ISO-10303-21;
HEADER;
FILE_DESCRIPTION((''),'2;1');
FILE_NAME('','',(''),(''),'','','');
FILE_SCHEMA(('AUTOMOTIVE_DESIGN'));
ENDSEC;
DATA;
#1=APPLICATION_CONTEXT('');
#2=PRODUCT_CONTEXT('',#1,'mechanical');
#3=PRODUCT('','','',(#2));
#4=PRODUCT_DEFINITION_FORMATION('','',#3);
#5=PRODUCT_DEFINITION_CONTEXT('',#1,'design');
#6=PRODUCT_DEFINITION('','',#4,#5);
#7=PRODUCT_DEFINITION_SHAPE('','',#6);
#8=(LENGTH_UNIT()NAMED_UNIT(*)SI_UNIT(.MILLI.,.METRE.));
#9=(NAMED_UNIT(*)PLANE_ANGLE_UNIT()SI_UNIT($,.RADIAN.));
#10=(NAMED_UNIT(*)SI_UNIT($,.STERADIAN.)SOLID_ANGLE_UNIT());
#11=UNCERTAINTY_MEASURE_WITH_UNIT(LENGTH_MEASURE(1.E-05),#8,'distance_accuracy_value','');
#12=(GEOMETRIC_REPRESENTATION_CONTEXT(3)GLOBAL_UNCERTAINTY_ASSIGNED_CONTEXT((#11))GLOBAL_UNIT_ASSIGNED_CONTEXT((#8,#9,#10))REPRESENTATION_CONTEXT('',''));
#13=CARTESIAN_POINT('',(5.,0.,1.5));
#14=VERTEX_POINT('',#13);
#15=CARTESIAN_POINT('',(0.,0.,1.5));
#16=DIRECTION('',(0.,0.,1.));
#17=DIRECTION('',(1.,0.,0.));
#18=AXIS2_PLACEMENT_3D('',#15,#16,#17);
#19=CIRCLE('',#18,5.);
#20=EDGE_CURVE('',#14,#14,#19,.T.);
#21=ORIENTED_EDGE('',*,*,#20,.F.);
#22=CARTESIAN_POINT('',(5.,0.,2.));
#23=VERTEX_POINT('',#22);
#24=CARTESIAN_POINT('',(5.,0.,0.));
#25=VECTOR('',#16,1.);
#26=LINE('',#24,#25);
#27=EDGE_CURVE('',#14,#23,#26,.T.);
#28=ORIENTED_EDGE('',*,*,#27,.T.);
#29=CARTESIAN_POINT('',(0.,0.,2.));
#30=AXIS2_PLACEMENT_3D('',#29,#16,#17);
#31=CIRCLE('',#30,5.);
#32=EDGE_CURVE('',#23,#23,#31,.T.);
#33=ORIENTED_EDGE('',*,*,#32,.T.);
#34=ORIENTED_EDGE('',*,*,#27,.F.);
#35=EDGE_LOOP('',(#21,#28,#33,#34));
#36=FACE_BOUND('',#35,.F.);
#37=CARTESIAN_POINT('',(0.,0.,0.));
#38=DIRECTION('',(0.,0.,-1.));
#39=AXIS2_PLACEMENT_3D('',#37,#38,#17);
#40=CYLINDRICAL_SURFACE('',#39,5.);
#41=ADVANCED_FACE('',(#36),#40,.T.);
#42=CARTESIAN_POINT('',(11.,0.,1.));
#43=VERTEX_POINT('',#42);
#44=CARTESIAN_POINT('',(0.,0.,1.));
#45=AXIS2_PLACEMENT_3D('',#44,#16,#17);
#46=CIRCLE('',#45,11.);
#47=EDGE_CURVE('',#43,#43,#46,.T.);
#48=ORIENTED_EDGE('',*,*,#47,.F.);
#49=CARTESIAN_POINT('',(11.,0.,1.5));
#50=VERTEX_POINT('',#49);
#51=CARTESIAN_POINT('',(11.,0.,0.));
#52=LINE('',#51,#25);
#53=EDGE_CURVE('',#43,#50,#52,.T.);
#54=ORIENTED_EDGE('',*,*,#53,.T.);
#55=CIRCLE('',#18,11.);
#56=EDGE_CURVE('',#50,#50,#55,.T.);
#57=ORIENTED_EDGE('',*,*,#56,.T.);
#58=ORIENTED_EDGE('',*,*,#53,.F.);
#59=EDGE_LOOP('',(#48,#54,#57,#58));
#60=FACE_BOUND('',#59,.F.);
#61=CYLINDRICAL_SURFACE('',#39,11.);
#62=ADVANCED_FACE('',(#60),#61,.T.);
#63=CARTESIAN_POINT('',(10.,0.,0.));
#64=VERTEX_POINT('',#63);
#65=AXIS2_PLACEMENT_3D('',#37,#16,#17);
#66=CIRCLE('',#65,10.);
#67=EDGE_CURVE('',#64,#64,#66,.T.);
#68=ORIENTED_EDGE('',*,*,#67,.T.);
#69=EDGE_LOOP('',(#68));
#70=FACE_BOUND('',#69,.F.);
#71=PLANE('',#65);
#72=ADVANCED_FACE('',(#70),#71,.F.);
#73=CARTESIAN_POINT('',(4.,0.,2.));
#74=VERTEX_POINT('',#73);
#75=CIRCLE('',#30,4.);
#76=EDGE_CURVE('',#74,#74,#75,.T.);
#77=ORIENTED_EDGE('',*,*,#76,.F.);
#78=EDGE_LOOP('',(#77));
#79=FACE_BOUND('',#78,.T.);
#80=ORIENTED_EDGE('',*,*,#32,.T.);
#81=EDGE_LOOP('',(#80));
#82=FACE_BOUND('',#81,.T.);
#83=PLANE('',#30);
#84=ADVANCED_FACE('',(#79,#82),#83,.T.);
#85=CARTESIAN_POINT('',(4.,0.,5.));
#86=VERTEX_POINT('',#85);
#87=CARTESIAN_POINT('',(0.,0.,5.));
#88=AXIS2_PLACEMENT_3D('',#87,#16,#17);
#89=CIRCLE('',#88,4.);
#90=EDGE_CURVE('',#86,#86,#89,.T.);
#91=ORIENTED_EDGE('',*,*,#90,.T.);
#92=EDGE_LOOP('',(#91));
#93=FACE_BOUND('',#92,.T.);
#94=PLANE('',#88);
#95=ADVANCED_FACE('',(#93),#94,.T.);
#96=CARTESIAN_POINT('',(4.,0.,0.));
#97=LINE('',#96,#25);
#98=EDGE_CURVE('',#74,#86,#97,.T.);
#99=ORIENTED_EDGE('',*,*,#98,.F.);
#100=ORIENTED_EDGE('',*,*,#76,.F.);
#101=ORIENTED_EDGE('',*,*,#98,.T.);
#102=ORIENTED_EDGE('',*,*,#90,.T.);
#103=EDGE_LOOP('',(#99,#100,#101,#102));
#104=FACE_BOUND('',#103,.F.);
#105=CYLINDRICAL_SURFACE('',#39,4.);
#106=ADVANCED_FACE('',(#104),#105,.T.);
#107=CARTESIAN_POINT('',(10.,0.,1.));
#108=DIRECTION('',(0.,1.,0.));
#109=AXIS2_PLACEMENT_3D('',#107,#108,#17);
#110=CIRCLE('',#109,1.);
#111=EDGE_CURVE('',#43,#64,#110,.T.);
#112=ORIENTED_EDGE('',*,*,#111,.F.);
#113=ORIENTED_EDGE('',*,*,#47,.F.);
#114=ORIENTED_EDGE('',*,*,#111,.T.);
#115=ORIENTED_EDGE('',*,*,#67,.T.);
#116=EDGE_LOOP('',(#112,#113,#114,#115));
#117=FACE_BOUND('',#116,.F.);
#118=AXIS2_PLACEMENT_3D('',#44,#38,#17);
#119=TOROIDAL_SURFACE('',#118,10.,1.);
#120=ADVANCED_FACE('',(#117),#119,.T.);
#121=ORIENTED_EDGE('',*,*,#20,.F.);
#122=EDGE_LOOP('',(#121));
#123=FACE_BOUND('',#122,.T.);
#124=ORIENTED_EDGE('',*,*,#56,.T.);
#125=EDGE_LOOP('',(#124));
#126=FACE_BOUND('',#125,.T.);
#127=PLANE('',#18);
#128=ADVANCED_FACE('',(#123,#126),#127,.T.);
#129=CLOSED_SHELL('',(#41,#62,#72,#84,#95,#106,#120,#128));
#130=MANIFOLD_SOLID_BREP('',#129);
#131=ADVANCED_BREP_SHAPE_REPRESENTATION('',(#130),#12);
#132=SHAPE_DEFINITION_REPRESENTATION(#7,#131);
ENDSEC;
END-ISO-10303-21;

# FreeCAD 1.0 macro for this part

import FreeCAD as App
import Part
import Sketcher
Q = App.Units.Quantity


def edges_at(feature, points):
    """Names of the edges that pass closest to the given points."""
    edges = feature.Shape.Edges
    near = lambda p: min(range(len(edges)), key=lambda i: edges[i].distToShape(Part.Vertex(*p))[0])
    return sorted({f"Edge{near(p) + 1}" for p in points})

doc = App.newDocument("Part")
params = doc.addObject("Spreadsheet::Sheet", "Params")
for row, (alias, value) in enumerate([
    ("sketch1_diameter", "22 mm"),
    ("sketch1_diameter2", "10 mm"),
    ("pad1_length", "1.5 mm"),
    ("sketch2_diameter", "10 mm"),
    ("sketch2_diameter2", "8 mm"),
    ("pad2_length", "2 mm"),
    ("sketch3_diameter", "8 mm"),
    ("pad3_length", "5 mm"),
    ("fillet_radius", "1 mm"),
], start=1):
    params.set(f"A{row}", alias)
    params.set(f"B{row}", "=" + value)
    params.setAlias(f"B{row}", alias)

body = doc.addObject("PartDesign::Body", "Body")

# Sketch on XY plane
sketch1 = body.newObject("Sketcher::SketchObject", "Sketch")
sketch1.AttachmentSupport = (doc.getObject("XY_Plane"), [""])
sketch1.MapMode = "FlatFace"
sketch1.addGeometry(Part.Circle(App.Vector(0, 0, 0), App.Vector(0, 0, 1), 11), False)
sketch1.addGeometry(Part.Circle(App.Vector(0, 0, 0), App.Vector(0, 0, 1), 5), False)
sketch1.addConstraint(Sketcher.Constraint("Coincident", 0, 3, -1, 1))
sketch1.addConstraint(Sketcher.Constraint("Coincident", 1, 3, -1, 1))
sketch1.addConstraint(Sketcher.Constraint("Diameter", 0, Q("22 mm")))
sketch1.addConstraint(Sketcher.Constraint("Diameter", 1, Q("10 mm")))
sketch1.setExpression("Constraints[2]", "Params.sketch1_diameter")
sketch1.setExpression("Constraints[3]", "Params.sketch1_diameter2")
pad1 = body.newObject("PartDesign::Pad", "Pad")
pad1.Profile = sketch1
pad1.setExpression("Length", "Params.pad1_length")

# Sketch on XY plane
sketch2 = body.newObject("Sketcher::SketchObject", "Sketch001")
sketch2.AttachmentSupport = (doc.getObject("XY_Plane"), [""])
sketch2.MapMode = "FlatFace"
sketch2.addGeometry(Part.Circle(App.Vector(0, 0, 0), App.Vector(0, 0, 1), 5), False)
sketch2.addGeometry(Part.Circle(App.Vector(0, 0, 0), App.Vector(0, 0, 1), 4), False)
sketch2.addConstraint(Sketcher.Constraint("Coincident", 0, 3, -1, 1))
sketch2.addConstraint(Sketcher.Constraint("Coincident", 1, 3, -1, 1))
sketch2.addConstraint(Sketcher.Constraint("Diameter", 0, Q("10 mm")))
sketch2.addConstraint(Sketcher.Constraint("Diameter", 1, Q("8 mm")))
sketch2.setExpression("Constraints[2]", "Params.sketch2_diameter")
sketch2.setExpression("Constraints[3]", "Params.sketch2_diameter2")
pad2 = body.newObject("PartDesign::Pad", "Pad001")
pad2.Profile = sketch2
pad2.setExpression("Length", "Params.pad2_length")

# Sketch on XY plane
sketch3 = body.newObject("Sketcher::SketchObject", "Sketch002")
sketch3.AttachmentSupport = (doc.getObject("XY_Plane"), [""])
sketch3.MapMode = "FlatFace"
sketch3.addGeometry(Part.Circle(App.Vector(0, 0, 0), App.Vector(0, 0, 1), 4), False)
sketch3.addConstraint(Sketcher.Constraint("Coincident", 0, 3, -1, 1))
sketch3.addConstraint(Sketcher.Constraint("Diameter", 0, Q("8 mm")))
sketch3.setExpression("Constraints[1]", "Params.sketch3_diameter")
pad3 = body.newObject("PartDesign::Pad", "Pad002")
pad3.Profile = sketch3
pad3.setExpression("Length", "Params.pad3_length")
doc.recompute()

fillet = body.newObject("PartDesign::Fillet", "Fillet")
fillet.Base = (pad3, edges_at(pad3, [(-11, 0, 0)]))
fillet.setExpression("Radius", "Params.fillet_radius")

doc.recompute()
